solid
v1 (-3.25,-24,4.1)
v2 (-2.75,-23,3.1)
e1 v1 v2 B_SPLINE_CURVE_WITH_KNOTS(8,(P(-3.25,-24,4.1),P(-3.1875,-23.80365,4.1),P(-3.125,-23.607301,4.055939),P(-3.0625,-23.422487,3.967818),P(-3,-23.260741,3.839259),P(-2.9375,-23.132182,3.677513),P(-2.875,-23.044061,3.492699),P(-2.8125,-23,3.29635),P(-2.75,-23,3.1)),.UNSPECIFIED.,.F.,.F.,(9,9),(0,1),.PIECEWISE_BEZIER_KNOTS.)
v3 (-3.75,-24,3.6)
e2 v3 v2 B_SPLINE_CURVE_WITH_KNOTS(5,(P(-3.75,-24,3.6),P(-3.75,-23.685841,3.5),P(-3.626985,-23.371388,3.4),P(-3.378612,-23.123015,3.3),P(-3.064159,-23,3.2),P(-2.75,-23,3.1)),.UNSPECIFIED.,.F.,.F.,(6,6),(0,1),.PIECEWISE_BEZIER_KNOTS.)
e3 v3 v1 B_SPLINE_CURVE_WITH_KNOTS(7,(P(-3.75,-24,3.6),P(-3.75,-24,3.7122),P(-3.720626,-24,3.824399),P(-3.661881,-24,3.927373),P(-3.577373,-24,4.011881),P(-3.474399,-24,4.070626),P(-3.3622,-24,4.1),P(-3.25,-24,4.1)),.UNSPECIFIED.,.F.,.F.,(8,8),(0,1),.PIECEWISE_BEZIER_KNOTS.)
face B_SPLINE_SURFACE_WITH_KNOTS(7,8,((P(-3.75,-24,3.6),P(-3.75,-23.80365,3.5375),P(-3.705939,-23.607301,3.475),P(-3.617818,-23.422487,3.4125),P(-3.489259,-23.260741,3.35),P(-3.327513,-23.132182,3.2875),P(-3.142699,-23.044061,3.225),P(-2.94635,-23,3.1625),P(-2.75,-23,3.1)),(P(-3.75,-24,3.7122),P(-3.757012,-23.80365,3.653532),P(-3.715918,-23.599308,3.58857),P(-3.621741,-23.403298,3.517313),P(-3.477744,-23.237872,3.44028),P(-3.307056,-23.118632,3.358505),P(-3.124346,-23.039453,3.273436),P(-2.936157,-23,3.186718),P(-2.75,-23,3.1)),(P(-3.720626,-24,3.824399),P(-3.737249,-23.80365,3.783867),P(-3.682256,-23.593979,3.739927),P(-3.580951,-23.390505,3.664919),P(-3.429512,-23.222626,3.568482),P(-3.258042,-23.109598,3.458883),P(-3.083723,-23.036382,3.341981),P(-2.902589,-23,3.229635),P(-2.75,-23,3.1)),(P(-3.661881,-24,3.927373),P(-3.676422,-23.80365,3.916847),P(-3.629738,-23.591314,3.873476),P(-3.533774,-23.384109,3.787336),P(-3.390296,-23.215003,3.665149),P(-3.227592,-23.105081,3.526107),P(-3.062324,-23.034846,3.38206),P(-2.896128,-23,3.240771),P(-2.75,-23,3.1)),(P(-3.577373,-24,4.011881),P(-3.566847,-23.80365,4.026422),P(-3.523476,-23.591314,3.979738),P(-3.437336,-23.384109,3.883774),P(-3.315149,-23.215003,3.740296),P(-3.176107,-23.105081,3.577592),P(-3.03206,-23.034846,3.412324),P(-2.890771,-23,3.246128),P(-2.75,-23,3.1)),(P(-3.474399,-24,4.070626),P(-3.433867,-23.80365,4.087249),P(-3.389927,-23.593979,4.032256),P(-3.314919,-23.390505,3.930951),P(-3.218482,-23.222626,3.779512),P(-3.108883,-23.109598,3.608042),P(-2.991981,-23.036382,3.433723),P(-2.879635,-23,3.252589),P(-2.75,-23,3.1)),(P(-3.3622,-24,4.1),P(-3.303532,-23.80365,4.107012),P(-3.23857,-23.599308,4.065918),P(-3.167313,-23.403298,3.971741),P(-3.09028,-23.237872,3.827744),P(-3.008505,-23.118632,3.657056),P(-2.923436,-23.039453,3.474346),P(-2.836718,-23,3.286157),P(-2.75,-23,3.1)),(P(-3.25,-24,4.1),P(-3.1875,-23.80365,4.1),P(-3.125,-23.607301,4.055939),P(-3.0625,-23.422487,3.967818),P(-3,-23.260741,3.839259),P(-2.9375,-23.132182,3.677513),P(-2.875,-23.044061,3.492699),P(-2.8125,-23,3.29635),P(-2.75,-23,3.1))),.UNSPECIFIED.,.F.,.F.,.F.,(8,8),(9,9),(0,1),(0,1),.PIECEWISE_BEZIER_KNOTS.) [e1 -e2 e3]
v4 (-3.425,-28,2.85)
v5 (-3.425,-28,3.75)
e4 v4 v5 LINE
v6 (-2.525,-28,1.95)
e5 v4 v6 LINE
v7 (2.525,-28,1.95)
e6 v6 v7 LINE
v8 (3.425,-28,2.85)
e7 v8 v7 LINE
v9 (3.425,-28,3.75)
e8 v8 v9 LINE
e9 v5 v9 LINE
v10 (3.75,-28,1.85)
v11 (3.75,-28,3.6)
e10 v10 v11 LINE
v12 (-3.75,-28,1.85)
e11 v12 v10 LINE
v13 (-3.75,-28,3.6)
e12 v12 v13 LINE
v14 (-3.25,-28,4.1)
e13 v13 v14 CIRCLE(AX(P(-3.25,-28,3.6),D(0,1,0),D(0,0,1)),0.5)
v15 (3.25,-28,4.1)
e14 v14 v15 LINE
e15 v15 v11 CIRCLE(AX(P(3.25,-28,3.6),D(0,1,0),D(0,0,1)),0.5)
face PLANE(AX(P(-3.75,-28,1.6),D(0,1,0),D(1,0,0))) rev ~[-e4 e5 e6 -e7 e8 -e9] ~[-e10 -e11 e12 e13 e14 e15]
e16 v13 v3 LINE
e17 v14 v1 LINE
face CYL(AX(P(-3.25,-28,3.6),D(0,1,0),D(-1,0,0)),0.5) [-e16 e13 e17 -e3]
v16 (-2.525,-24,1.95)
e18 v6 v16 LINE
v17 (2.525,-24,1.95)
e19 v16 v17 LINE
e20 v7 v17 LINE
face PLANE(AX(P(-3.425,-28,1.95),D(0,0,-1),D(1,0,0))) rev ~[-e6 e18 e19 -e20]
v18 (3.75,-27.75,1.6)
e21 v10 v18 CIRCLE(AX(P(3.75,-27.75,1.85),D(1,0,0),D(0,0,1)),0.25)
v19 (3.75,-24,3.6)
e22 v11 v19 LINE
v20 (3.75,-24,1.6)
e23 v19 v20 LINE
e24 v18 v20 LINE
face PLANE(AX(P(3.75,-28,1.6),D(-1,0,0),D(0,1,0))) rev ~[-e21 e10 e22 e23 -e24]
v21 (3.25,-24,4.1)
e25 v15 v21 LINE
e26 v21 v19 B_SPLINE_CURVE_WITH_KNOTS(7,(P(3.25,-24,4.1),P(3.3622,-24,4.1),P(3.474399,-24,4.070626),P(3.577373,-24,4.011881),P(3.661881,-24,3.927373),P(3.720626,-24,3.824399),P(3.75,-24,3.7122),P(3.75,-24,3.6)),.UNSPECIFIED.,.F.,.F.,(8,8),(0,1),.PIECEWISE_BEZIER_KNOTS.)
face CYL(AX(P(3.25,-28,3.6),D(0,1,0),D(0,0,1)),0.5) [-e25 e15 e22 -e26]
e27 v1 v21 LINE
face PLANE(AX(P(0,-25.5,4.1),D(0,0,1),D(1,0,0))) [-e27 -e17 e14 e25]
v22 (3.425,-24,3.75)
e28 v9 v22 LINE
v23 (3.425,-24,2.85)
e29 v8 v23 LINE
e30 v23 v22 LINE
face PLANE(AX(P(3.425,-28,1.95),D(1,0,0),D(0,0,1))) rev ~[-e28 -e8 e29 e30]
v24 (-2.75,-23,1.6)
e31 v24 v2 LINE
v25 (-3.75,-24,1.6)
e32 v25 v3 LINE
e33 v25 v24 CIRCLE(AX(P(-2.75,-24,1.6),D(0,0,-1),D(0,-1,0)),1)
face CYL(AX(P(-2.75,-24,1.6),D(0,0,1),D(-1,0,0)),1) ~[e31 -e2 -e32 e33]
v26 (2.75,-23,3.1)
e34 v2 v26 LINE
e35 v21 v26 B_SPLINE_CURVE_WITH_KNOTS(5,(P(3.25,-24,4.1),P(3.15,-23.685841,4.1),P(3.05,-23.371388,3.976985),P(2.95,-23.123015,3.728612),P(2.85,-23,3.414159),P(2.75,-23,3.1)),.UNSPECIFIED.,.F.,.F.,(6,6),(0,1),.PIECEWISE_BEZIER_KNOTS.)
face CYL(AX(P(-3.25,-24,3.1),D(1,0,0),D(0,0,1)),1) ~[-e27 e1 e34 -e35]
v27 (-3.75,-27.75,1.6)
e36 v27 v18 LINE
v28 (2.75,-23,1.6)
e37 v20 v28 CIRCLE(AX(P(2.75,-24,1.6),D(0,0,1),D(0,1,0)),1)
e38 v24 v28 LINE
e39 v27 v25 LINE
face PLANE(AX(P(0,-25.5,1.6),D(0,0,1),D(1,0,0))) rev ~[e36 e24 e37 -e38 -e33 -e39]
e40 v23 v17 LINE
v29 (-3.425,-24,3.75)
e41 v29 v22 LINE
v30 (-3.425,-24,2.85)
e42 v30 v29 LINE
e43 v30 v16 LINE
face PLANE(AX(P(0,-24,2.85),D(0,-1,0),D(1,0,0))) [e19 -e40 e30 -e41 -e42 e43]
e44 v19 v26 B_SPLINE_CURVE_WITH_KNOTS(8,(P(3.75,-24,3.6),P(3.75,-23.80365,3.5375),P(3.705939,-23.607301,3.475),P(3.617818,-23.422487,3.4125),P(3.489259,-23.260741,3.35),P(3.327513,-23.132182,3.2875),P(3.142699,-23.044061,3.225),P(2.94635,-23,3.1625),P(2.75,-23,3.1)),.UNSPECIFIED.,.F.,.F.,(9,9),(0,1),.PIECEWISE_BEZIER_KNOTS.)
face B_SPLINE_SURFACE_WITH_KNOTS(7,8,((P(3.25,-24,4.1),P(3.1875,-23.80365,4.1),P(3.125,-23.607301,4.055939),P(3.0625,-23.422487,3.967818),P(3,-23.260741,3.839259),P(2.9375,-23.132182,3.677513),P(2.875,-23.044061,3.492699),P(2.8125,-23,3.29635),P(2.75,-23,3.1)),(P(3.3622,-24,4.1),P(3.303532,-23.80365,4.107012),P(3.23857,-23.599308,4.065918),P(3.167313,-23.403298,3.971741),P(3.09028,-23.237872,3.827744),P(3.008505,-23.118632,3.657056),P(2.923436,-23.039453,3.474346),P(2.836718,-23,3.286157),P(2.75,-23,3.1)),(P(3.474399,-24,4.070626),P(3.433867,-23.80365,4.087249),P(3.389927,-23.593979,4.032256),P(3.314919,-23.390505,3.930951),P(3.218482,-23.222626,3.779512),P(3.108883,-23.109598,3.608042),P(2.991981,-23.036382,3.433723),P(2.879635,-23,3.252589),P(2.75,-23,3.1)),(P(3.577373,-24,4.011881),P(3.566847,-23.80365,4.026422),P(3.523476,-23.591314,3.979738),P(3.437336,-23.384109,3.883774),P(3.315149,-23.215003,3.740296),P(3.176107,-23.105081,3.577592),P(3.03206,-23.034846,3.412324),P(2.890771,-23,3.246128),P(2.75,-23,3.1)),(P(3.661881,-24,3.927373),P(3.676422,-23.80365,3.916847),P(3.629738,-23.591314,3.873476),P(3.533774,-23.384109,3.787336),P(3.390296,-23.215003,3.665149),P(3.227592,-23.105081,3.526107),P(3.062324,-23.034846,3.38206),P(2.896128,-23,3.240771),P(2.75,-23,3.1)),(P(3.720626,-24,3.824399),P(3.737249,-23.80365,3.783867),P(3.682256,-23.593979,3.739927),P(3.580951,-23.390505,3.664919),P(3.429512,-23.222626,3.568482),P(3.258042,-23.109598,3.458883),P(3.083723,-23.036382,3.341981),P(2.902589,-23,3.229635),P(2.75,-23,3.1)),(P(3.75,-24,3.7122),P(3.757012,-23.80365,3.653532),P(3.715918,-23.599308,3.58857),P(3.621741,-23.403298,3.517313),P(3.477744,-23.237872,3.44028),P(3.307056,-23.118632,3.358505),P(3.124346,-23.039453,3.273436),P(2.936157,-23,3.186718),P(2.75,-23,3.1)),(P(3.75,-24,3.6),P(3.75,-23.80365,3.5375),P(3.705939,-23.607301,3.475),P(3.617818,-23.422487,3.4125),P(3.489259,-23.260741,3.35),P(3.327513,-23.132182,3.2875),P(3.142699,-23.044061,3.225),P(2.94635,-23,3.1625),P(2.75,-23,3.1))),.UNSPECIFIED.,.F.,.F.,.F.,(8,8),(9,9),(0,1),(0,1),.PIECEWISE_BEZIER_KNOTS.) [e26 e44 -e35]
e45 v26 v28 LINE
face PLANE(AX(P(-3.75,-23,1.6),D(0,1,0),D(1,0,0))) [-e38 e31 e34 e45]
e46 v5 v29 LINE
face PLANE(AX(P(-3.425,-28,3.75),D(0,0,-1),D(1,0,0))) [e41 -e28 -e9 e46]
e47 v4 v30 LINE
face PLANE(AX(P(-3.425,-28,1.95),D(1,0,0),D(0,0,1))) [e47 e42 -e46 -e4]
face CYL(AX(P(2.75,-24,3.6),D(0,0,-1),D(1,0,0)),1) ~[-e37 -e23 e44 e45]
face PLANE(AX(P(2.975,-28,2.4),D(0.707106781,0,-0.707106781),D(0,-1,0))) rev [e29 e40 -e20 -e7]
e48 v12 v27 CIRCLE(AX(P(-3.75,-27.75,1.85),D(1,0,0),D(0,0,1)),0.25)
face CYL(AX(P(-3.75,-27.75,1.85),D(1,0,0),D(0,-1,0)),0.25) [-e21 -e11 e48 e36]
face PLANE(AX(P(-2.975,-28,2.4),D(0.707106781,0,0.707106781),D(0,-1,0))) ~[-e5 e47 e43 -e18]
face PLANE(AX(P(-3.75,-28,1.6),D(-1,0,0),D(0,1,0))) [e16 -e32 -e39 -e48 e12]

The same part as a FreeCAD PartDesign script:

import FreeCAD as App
import Part
import Sketcher

V = App.Vector
Q = App.Units.Quantity


def edges_at(feature, points):
    """Names of the edges that pass closest to the given points."""
    edges = feature.Shape.Edges
    near = lambda p: min(range(len(edges)), key=lambda i: edges[i].distToShape(Part.Vertex(*p))[0])
    return sorted({f"Edge{near(p) + 1}" for p in points})


def add_polygon(sketch, points):
    """Adds a closed chain of lines whose ends are joined by coincident constraints."""
    first, n = sketch.GeometryCount, len(points)
    for a, b in zip(points, points[1:] + points[:1]):
        sketch.addGeometry(Part.LineSegment(App.Vector(*a, 0), App.Vector(*b, 0)), False)
    for i in range(n):
        sketch.addConstraint(Sketcher.Constraint("Coincident", first + i, 2, first + (i + 1) % n, 1))

doc = App.newDocument("Part")
params = doc.addObject("Spreadsheet::Sheet", "Params")
for row, (alias, value) in enumerate([
    ("sketch1_height", "5 mm"),
    ("sketch1_width", "7.5 mm"),
    ("pad1_length", "2.5 mm"),
    ("sketch2_height", "1.8 mm"),
    ("sketch2_width", "6.85 mm"),
    ("pocket1_length", "4 mm"),
    ("fillet_radius", "0.5 mm"),
    ("chamfer_size", "0.9 mm"),
    ("fillet2_radius", "0.25 mm"),
    ("fillet3_radius", "1 mm"),
], start=1):
    params.set(f"A{row}", alias)
    params.set(f"B{row}", "=" + value)
    params.setAlias(f"B{row}", alias)

body = doc.addObject("PartDesign::Body", "Body")

# Sketch on XY plane
sketch1 = doc.addObject("Sketcher::SketchObject", "Sketch")
body.addObject(sketch1)
sketch1.AttachmentSupport = (doc.XY_Plane, [""])
sketch1.MapMode = "FlatFace"
sketch1.AttachmentOffset = App.Placement(V(0, 0, 1.6), App.Rotation())
add_polygon(sketch1, [(-4, -23), (-4, -28), (4, -28), (4, -23)])  # lines 0-3
sketch1.addConstraint([
    Sketcher.Constraint("Vertical", 0),
    Sketcher.Constraint("Horizontal", 1),
    Sketcher.Constraint("Vertical", 2),
    Sketcher.Constraint("Horizontal", 3),
    Sketcher.Constraint("DistanceY", 0, 2, 0, 1, Q("5 mm")),
    Sketcher.Constraint("DistanceX", 1, 1, 1, 2, Q("7.5 mm")),
    Sketcher.Constraint("DistanceY", 0, 2, -1, 1, Q("28 mm")),
    Sketcher.Constraint("DistanceX", 0, 2, -1, 1, Q("3.75 mm")),
])
sketch1.setExpression("Constraints[8]", "Params.sketch1_height")
sketch1.setExpression("Constraints[9]", "Params.sketch1_width")
pad1 = doc.addObject("PartDesign::Pad", "Pad")
body.addObject(pad1)
pad1.Profile = sketch1
pad1.setExpression("Length", "Params.pad1_length")

# Sketch on XZ plane
sketch2 = doc.addObject("Sketcher::SketchObject", "Sketch001")
body.addObject(sketch2)
sketch2.AttachmentSupport = (doc.XZ_Plane, [""])
sketch2.MapMode = "FlatFace"
sketch2.AttachmentOffset = App.Placement(V(0, 0, 28), App.Rotation())
add_polygon(sketch2, [(-3.4, 3.8), (-3.4, 1.9), (3.4, 1.9), (3.4, 3.8)])  # lines 0-3
sketch2.addConstraint([
    Sketcher.Constraint("Vertical", 0),
    Sketcher.Constraint("Horizontal", 1),
    Sketcher.Constraint("Vertical", 2),
    Sketcher.Constraint("Horizontal", 3),
    Sketcher.Constraint("DistanceY", 0, 2, 0, 1, Q("1.8 mm")),
    Sketcher.Constraint("DistanceX", 1, 1, 1, 2, Q("6.85 mm")),
    Sketcher.Constraint("DistanceY", -1, 1, 0, 2, Q("1.95 mm")),
    Sketcher.Constraint("DistanceX", 0, 2, -1, 1, Q("3.425 mm")),
])
sketch2.setExpression("Constraints[8]", "Params.sketch2_height")
sketch2.setExpression("Constraints[9]", "Params.sketch2_width")
pocket1 = doc.addObject("PartDesign::Pocket", "Pocket")
body.addObject(pocket1)
pocket1.Profile = sketch2
pocket1.setExpression("Length", "Params.pocket1_length")
doc.recompute()

fillet = doc.addObject("PartDesign::Fillet", "Fillet")
body.addObject(fillet)
fillet.Base = (pocket1, edges_at(pocket1, [(-3.75, -25.5, 4.1), (3.75, -25.5, 4.1)]))
fillet.setExpression("Radius", "Params.fillet_radius")
doc.recompute()

chamfer = doc.addObject("PartDesign::Chamfer", "Chamfer")
body.addObject(chamfer)
chamfer.Base = (fillet, edges_at(fillet, [(3.425, -26, 1.95), (-3.425, -26, 1.95)]))
chamfer.setExpression("Size", "Params.chamfer_size")
doc.recompute()

fillet2 = doc.addObject("PartDesign::Fillet", "Fillet001")
body.addObject(fillet2)
fillet2.Base = (chamfer, edges_at(chamfer, [(0, -28, 1.6)]))
fillet2.setExpression("Radius", "Params.fillet2_radius")
doc.recompute()

fillet3 = doc.addObject("PartDesign::Fillet", "Fillet002")
body.addObject(fillet3)
fillet3.Base = (fillet2, edges_at(fillet2, [(0, -23, 4.1)]))
fillet3.setExpression("Radius", "Params.fillet3_radius")

doc.recompute()
